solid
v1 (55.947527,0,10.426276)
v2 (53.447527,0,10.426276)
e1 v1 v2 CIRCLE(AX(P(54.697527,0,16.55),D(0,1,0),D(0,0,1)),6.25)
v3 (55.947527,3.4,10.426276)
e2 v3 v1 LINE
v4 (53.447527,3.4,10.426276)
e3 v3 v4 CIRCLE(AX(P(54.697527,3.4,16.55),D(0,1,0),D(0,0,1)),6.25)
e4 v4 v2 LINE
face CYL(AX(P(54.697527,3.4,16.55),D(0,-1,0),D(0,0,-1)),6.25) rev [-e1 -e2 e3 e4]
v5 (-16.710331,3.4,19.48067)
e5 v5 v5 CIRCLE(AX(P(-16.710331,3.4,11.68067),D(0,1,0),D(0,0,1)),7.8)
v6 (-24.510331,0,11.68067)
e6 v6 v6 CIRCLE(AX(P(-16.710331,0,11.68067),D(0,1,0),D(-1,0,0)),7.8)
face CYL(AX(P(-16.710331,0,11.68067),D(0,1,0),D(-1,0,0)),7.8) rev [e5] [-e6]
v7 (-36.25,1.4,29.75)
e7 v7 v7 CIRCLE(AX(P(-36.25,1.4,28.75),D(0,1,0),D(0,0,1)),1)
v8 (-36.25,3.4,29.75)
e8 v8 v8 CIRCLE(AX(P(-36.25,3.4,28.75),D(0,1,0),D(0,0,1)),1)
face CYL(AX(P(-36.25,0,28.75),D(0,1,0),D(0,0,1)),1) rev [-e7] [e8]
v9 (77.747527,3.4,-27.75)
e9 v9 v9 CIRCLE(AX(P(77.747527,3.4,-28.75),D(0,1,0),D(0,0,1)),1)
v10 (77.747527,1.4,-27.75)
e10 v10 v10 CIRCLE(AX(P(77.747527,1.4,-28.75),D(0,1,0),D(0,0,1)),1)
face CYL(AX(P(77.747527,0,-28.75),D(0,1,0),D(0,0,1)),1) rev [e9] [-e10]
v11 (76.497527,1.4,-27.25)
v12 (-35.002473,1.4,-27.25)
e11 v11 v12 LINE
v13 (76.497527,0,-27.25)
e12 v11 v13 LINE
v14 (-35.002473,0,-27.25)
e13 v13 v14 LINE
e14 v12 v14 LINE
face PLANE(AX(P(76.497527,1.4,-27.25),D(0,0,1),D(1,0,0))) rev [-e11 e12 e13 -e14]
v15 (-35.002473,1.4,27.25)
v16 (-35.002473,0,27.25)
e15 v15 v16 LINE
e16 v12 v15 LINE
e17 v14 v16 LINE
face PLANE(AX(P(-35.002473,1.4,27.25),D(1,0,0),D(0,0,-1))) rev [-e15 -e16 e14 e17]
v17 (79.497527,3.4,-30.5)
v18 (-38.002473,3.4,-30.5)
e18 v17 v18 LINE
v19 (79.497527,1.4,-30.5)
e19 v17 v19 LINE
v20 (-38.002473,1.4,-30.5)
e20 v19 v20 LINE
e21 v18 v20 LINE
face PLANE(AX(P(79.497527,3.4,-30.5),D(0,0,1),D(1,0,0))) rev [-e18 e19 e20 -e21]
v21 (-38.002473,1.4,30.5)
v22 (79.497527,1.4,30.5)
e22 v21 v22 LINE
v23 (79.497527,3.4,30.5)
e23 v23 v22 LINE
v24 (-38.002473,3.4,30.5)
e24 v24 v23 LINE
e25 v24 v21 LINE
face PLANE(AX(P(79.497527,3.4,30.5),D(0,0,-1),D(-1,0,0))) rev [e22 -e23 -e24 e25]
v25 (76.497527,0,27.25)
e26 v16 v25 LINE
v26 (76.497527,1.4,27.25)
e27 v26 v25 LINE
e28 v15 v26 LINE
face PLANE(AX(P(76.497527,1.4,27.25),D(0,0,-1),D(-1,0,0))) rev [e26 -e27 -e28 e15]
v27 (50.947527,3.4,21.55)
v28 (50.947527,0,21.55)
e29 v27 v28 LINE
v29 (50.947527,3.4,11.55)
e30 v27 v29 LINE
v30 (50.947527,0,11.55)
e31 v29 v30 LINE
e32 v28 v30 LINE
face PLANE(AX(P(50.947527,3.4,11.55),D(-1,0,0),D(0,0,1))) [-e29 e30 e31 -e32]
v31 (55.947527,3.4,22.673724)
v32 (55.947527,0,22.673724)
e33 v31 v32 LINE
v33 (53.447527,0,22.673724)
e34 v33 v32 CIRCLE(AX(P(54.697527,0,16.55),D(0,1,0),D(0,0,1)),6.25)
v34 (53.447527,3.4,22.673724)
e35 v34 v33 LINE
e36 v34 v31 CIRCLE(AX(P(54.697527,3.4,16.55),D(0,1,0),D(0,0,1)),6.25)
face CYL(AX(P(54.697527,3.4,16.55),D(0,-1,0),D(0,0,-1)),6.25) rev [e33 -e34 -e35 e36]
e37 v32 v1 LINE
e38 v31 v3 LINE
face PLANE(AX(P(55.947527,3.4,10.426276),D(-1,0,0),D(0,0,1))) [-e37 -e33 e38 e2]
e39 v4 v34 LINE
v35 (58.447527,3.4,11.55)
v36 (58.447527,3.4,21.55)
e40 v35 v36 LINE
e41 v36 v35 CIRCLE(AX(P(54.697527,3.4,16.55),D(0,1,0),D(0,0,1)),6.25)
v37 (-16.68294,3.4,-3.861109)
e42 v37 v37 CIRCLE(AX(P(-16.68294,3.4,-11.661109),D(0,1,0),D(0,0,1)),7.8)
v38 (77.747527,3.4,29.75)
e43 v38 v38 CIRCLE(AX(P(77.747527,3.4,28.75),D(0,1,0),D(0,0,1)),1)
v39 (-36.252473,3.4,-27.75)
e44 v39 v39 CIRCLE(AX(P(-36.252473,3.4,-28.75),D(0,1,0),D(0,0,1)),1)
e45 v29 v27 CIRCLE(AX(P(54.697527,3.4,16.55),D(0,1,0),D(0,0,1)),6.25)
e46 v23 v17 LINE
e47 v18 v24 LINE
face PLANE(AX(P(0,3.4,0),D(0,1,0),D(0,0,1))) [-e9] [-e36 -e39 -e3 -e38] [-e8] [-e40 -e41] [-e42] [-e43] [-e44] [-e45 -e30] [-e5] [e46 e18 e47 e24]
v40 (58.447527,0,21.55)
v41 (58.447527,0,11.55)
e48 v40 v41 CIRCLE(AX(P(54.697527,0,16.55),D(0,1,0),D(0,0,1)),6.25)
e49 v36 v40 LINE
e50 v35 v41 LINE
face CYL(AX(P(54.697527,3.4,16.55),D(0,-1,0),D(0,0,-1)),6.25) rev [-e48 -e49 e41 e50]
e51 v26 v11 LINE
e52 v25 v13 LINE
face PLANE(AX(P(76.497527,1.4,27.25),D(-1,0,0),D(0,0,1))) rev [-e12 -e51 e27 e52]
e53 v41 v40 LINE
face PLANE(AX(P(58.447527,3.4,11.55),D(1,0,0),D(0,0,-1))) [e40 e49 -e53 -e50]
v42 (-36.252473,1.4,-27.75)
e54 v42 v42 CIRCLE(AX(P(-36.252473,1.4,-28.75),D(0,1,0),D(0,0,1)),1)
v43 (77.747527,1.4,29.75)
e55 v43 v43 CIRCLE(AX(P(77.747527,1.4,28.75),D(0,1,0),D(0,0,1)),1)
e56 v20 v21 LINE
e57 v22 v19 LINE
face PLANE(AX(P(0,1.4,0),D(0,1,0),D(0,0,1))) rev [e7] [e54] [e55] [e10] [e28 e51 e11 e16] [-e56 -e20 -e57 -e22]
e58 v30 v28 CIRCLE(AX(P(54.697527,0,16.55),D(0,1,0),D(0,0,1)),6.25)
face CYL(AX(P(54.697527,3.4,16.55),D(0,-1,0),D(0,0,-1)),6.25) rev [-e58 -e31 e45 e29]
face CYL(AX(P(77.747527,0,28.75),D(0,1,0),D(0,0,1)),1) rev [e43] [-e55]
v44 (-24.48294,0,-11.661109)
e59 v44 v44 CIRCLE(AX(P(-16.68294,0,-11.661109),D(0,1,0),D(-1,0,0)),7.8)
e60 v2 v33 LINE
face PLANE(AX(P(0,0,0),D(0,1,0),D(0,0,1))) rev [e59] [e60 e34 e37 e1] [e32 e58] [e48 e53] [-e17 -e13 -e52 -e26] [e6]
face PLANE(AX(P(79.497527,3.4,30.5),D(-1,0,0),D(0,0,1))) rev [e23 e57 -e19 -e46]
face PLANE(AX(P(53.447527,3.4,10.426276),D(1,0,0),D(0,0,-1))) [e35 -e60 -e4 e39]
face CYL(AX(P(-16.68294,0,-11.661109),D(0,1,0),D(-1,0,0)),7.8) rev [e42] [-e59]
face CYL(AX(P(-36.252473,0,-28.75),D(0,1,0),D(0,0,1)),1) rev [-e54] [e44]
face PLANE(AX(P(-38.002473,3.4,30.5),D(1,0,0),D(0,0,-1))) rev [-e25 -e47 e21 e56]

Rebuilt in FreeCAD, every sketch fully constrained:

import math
import FreeCAD as App
import Part
import Sketcher

V = App.Vector


def add_polygon(sketch, points):
    """Adds a closed chain of lines whose ends are joined by coincident constraints."""
    first, n = sketch.GeometryCount, len(points)
    for a, b in zip(points, points[1:] + points[:1]):
        sketch.addGeometry(Part.LineSegment(App.Vector(*a, 0), App.Vector(*b, 0)), False)
    for i in range(n):
        sketch.addConstraint(Sketcher.Constraint("Coincident", first + i, 2, first + (i + 1) % n, 1))

doc = App.newDocument("Part")
body = doc.addObject("PartDesign::Body", "Body")

# Sketch on XZ plane
sketch1 = body.newObject("Sketcher::SketchObject", "Sketch")
sketch1.AttachmentSupport = (doc.getObject("XZ_Plane"), [""])
sketch1.MapMode = "FlatFace"
add_polygon(sketch1, [(-35, -27), (-35, 27), (76, 27), (76, -27)])  # lines 0-3
sketch1.addConstraint([
    Sketcher.Constraint("Vertical", 0),
    Sketcher.Constraint("Horizontal", 1),
    Sketcher.Constraint("Vertical", 2),
    Sketcher.Constraint("Horizontal", 3),
    Sketcher.Constraint("DistanceX", 1, 1, 1, 2, 111.5),
    Sketcher.Constraint("DistanceY", 0, 1, 0, 2, 54.5),
    Sketcher.Constraint("DistanceY", -1, 1, 0, 2, 27.25),
    Sketcher.Constraint("DistanceX", 0, 2, -1, 1, 35.002473),
])
pad1 = body.newObject("PartDesign::Pad", "Pad")
pad1.Profile = sketch1
pad1.Length = 1.4
pad1.Reversed = True

# Sketch on XZ plane
sketch2 = body.newObject("Sketcher::SketchObject", "Sketch001")
sketch2.AttachmentSupport = (doc.getObject("XZ_Plane"), [""])
sketch2.MapMode = "FlatFace"
sketch2.AttachmentOffset = App.Placement(V(0, 0, -1.4), App.Rotation())
add_polygon(sketch2, [(-38, -30), (-38, 30), (79, 30), (79, -30)])  # lines 0-3
sketch2.addConstraint([
    Sketcher.Constraint("Vertical", 0),
    Sketcher.Constraint("Horizontal", 1),
    Sketcher.Constraint("Vertical", 2),
    Sketcher.Constraint("Horizontal", 3),
    Sketcher.Constraint("DistanceY", 0, 1, 0, 2, 61.0),
    Sketcher.Constraint("DistanceX", 1, 1, 1, 2, 117.5),
    Sketcher.Constraint("DistanceY", -1, 1, 0, 2, 30.5),
    Sketcher.Constraint("DistanceX", 0, 2, -1, 1, 38.002473),
])
pad2 = body.newObject("PartDesign::Pad", "Pad001")
pad2.Profile = sketch2
pad2.Length = 2
pad2.Reversed = True

# Sketch on XZ plane
sketch3 = body.newObject("Sketcher::SketchObject", "Sketch002")
sketch3.AttachmentSupport = (doc.getObject("XZ_Plane"), [""])
sketch3.MapMode = "FlatFace"
sketch3.AttachmentOffset = App.Placement(V(0, 0, -3.4), App.Rotation())
sketch3.addGeometry([
    Part.Circle(V(-36.3, -28.8, 0), V(0, 0, 1), 1),
    Part.Circle(V(77.7, -28.8, 0), V(0, 0, 1), 1),
    Part.Circle(V(77.7, 28.8, 0), V(0, 0, 1), 1),
    Part.Circle(V(-36.2, 28.8, 0), V(0, 0, 1), 1),
], False)
sketch3.addConstraint([
    Sketcher.Constraint("Equal", 0, 1),
    Sketcher.Constraint("Equal", 1, 2),
    Sketcher.Constraint("Equal", 2, 3),
    Sketcher.Constraint("Symmetric", 1, 3, 2, 3, -1),
    Sketcher.Constraint("Horizontal", 0, 3, 1, 3),
    Sketcher.Constraint("Horizontal", 2, 3, 3, 3),
    Sketcher.Constraint("Diameter", 0, 2.0),
    Sketcher.Constraint("DistanceX", 0, 3, 1, 3, 114.0),
    Sketcher.Constraint("DistanceY", 1, 3, 2, 3, 57.5),
    Sketcher.Constraint("DistanceX", 3, 3, -1, 1, 36.25),
    Sketcher.Constraint("DistanceX", 0, 3, -1, 1, 36.252473),
])
pocket1 = body.newObject("PartDesign::Pocket", "Pocket")
pocket1.Profile = sketch3
pocket1.Type = "ThroughAll"
pocket1.Reversed = True

# Sketch on XZ plane
sketch4 = body.newObject("Sketcher::SketchObject", "Sketch003")
sketch4.AttachmentSupport = (doc.getObject("XZ_Plane"), [""])
sketch4.MapMode = "FlatFace"
sketch4.AttachmentOffset = App.Placement(V(0, 0, -7.311372), App.Rotation())
sketch4.addGeometry([
    Part.Circle(V(-17, -12, 0), V(0, 0, 1), 8),
    Part.Circle(V(-17, 12, 0), V(0, 0, 1), 8),
], False)
sketch4.addConstraint([
    Sketcher.Constraint("Equal", 0, 1),
    Sketcher.Constraint("Diameter", 0, 15.6),
    Sketcher.Constraint("DistanceX", 0, 3, -1, 1, 16.68294),
    Sketcher.Constraint("DistanceY", 0, 3, -1, 1, 11.661109),
    Sketcher.Constraint("DistanceX", 1, 3, -1, 1, 16.710331),
    Sketcher.Constraint("DistanceY", -1, 1, 1, 3, 11.68067),
])
pocket2 = body.newObject("PartDesign::Pocket", "Pocket001")
pocket2.Profile = sketch4
pocket2.Type = "ThroughAll"
pocket2.Midplane = True

# Sketch on XZ plane
sketch5 = body.newObject("Sketcher::SketchObject", "Sketch004")
sketch5.AttachmentSupport = (doc.getObject("XZ_Plane"), [""])
sketch5.MapMode = "FlatFace"
sketch5.addGeometry([
    Part.LineSegment(V(58.4, 11.6, 0), V(58.4, 21.6, 0)),  # 0
    Part.ArcOfCircle(Part.Circle(V(54.7, 16.6, 0), V(0, 0, 1), 6.2), math.radians(-53), math.radians(53)),  # 1
    Part.LineSegment(V(55.9, 22.7, 0), V(55.9, 10.4, 0)),  # 2
    Part.ArcOfCircle(Part.Circle(V(54.7, 16.6, 0), V(0, 0, 1), 6.3), math.radians(-102), math.radians(-78)),  # 3
    Part.LineSegment(V(53.4, 10.4, 0), V(53.4, 22.7, 0)),  # 4
    Part.ArcOfCircle(Part.Circle(V(54.7, 16.5, 0), V(0, 0, 1), 6.3), math.radians(78), math.radians(102)),  # 5
    Part.LineSegment(V(50.9, 21.6, 0), V(50.9, 11.6, 0)),  # 6
    Part.ArcOfCircle(Part.Circle(V(54.7, 16.6, 0), V(0, 0, 1), 6.2), math.radians(127), math.radians(233)),  # 7
], False)
sketch5.addConstraint([
    Sketcher.Constraint("Coincident", 0, 1, 1, 1),
    Sketcher.Constraint("Coincident", 1, 2, 0, 2),
    Sketcher.Constraint("Coincident", 2, 2, 3, 2),
    Sketcher.Constraint("Coincident", 3, 1, 4, 1),
    Sketcher.Constraint("Coincident", 4, 2, 5, 2),
    Sketcher.Constraint("Coincident", 5, 1, 2, 1),
    Sketcher.Constraint("Coincident", 6, 1, 7, 1),
    Sketcher.Constraint("Coincident", 7, 2, 6, 2),
    Sketcher.Constraint("Vertical", 0),
    Sketcher.Constraint("Vertical", 2),
    Sketcher.Constraint("Vertical", 4),
    Sketcher.Constraint("Vertical", 6),
    Sketcher.Constraint("Coincident", 3, 3, 1, 3),
    Sketcher.Constraint("Coincident", 5, 3, 1, 3),
    Sketcher.Constraint("Coincident", 7, 3, 1, 3),
    Sketcher.Constraint("Equal", 1, 3),
    Sketcher.Constraint("Equal", 3, 5),
    Sketcher.Constraint("Equal", 5, 7),
    Sketcher.Constraint("Horizontal", 2, 2, 3, 1),
    Sketcher.Constraint("Horizontal", 1, 2, 6, 1),
    Sketcher.Constraint("DistanceY", 0, 1, 0, 2, 10.0),
    Sketcher.Constraint("Radius", 1, 6.25),
    Sketcher.Constraint("DistanceX", 3, 1, 0, 1, 5.0),
    Sketcher.Constraint("DistanceY", -1, 1, 1, 3, 16.55),
    Sketcher.Constraint("DistanceX", -1, 1, 1, 3, 54.697527),
])
pocket3 = body.newObject("PartDesign::Pocket", "Pocket002")
pocket3.Profile = sketch5
pocket3.Type = "ThroughAll"

doc.recompute()
